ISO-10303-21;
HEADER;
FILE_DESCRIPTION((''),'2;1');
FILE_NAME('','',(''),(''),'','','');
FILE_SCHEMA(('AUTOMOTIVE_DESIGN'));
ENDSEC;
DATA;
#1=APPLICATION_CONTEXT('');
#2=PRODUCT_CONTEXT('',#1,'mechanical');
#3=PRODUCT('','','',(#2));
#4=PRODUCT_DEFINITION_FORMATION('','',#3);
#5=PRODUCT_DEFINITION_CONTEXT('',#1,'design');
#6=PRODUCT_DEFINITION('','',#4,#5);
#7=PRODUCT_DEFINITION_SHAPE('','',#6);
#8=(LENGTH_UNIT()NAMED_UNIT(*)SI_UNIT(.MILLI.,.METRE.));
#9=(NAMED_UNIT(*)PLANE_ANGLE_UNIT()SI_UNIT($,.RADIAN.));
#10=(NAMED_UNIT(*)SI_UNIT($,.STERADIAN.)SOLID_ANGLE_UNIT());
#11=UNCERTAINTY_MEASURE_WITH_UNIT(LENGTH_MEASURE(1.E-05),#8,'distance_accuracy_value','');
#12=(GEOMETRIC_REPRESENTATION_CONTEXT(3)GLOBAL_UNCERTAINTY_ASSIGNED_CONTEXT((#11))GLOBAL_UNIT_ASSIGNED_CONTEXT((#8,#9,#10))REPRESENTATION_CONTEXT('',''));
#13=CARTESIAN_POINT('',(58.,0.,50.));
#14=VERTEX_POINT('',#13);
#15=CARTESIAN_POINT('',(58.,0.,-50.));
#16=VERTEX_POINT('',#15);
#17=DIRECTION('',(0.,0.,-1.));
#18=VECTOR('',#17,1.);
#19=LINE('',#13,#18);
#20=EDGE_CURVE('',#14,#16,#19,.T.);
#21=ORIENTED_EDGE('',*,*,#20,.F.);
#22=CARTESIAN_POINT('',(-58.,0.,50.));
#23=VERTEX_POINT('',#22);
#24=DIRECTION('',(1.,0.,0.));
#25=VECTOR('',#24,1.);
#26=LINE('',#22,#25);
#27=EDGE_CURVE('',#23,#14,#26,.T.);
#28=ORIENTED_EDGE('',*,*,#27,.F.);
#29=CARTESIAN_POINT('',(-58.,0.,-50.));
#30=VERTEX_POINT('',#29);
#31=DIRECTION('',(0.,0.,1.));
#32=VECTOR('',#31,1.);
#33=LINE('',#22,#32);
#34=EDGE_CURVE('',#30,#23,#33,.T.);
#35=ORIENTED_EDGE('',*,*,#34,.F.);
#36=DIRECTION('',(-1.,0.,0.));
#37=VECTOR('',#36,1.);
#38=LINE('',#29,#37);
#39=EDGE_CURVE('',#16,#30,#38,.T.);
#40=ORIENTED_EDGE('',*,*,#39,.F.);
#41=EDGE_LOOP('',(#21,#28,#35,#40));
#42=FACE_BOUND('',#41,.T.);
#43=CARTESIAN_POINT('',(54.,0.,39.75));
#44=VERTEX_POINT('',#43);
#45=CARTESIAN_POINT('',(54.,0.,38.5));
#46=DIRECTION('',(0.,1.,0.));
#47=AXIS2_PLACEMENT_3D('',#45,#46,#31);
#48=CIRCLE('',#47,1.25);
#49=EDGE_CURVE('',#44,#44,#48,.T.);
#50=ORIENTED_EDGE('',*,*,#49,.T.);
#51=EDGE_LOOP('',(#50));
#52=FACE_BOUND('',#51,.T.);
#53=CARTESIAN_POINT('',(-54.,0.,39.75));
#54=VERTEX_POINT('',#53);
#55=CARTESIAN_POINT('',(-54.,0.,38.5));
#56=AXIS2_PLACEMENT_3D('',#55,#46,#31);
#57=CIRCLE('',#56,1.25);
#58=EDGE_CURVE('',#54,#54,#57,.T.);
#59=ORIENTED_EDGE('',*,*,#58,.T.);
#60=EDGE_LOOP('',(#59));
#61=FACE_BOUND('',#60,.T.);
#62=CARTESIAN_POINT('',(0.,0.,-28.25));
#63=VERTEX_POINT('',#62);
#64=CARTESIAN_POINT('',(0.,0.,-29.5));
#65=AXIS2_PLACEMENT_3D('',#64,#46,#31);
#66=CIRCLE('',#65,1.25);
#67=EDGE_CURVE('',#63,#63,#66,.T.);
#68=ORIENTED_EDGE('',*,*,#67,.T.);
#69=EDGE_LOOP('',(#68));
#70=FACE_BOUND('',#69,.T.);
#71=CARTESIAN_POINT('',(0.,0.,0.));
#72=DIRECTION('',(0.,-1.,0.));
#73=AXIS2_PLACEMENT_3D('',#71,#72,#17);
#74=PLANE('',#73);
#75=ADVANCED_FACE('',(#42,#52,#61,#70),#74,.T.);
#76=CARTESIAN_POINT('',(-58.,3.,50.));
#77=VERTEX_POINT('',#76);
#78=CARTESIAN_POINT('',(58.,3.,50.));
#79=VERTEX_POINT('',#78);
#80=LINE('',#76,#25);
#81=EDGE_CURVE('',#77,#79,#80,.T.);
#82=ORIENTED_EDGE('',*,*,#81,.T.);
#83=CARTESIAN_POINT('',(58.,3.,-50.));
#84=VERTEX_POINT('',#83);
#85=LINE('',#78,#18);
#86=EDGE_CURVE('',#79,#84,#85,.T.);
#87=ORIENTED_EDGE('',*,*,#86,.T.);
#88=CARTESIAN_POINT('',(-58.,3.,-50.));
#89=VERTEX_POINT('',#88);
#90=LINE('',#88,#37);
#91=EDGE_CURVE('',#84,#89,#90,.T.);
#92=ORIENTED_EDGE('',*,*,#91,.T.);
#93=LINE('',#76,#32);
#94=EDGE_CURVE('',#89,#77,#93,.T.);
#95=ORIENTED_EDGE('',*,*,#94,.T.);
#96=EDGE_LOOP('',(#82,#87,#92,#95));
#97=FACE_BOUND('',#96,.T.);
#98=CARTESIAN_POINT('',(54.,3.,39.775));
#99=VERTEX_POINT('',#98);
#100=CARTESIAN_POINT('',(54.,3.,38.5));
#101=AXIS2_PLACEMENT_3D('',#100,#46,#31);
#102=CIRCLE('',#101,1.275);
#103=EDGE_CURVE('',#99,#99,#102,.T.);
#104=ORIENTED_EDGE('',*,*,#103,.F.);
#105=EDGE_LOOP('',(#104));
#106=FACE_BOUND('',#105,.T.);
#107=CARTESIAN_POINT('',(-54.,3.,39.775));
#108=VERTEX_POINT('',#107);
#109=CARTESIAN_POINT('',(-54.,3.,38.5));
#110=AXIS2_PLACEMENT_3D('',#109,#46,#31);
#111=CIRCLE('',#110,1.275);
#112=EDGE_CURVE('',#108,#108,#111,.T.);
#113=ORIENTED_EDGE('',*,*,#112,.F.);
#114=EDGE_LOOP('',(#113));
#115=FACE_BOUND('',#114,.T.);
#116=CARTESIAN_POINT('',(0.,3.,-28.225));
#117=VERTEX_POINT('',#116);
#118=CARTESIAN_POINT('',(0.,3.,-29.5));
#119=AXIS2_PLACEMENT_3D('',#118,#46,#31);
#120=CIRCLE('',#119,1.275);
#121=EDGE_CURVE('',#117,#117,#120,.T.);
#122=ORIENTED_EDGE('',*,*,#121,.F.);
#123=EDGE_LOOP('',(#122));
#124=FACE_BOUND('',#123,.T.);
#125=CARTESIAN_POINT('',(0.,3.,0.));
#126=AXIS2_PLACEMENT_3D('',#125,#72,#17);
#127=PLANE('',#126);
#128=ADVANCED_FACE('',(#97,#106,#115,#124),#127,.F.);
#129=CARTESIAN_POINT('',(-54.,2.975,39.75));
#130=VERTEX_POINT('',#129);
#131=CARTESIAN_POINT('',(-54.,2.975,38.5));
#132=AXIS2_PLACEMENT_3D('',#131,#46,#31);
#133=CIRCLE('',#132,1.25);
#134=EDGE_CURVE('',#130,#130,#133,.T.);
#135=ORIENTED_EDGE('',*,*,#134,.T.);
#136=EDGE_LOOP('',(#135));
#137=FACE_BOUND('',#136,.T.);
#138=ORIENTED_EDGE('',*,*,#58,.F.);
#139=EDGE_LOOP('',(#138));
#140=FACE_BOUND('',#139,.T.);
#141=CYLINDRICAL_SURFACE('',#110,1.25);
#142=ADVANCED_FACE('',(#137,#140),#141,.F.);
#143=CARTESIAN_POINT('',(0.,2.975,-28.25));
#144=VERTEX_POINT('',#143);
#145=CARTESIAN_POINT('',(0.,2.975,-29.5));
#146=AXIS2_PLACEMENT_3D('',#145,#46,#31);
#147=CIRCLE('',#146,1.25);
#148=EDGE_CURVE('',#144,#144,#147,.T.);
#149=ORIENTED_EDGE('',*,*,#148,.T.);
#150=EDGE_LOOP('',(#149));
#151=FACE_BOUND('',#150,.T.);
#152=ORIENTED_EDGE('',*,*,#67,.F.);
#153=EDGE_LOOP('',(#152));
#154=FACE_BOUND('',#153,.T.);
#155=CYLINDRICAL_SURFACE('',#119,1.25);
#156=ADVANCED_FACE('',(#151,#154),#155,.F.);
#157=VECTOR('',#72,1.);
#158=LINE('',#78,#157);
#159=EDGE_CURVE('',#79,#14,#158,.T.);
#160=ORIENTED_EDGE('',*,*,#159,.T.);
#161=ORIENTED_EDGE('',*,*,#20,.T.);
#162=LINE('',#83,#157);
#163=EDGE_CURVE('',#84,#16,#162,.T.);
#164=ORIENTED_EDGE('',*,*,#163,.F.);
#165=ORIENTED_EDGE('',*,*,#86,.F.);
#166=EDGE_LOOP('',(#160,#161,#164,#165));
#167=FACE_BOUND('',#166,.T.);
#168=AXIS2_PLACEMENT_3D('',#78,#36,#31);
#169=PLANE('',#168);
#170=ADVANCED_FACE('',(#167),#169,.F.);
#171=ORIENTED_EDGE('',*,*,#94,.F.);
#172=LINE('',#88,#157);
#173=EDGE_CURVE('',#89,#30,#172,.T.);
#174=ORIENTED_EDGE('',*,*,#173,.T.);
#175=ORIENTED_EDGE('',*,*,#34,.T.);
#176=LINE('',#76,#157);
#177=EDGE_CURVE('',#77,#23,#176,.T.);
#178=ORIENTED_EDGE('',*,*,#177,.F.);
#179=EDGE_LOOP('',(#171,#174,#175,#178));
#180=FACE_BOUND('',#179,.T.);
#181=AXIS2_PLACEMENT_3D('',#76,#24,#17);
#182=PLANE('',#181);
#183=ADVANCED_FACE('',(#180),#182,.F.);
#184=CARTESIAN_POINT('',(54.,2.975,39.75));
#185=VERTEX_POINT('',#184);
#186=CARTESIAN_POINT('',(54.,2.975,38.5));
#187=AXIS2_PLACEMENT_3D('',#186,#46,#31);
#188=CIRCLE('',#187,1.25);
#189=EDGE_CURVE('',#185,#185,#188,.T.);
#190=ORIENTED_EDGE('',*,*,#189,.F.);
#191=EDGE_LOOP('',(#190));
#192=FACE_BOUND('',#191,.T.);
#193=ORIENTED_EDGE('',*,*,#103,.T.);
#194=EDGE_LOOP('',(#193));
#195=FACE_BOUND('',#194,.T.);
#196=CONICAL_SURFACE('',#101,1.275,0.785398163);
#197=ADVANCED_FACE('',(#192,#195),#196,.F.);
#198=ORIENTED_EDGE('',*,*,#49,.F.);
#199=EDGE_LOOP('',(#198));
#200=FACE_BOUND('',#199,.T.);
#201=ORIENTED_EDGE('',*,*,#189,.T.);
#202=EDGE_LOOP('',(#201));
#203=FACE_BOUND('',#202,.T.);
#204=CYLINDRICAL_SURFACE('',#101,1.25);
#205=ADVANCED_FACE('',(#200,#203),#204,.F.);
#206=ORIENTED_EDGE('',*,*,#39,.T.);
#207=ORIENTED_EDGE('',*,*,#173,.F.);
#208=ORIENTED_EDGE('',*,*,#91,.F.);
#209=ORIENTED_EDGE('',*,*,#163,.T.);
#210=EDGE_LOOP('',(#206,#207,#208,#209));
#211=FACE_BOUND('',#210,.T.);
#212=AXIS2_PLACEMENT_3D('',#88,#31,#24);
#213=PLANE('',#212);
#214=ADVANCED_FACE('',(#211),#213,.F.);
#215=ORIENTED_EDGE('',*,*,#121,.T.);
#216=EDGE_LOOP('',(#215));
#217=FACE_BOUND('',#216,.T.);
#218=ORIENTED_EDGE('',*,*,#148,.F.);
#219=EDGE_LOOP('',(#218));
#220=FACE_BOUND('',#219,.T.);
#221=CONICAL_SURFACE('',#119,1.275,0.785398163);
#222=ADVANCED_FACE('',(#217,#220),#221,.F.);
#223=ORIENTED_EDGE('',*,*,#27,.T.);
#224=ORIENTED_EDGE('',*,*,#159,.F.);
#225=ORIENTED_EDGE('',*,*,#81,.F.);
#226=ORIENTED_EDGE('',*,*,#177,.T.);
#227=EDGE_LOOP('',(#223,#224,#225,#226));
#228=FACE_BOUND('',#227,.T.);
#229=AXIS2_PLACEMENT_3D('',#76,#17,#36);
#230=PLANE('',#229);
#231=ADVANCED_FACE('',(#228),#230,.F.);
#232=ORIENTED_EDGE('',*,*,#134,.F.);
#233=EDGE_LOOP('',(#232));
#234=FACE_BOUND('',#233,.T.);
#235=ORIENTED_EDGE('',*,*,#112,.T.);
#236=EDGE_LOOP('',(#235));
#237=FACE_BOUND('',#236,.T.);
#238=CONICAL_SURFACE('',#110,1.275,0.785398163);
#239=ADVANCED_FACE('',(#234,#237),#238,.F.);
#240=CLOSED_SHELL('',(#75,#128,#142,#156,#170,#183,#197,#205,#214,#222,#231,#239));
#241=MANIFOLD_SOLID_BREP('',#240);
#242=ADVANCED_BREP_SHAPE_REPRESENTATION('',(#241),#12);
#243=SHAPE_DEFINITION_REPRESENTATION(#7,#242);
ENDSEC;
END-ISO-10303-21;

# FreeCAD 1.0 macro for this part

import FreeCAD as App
import Part
import Sketcher

V = App.Vector


def add_polygon(sketch, points):
    """Adds a closed chain of lines whose ends are joined by coincident constraints."""
    first, n = sketch.GeometryCount, len(points)
    for a, b in zip(points, points[1:] + points[:1]):
        sketch.addGeometry(Part.LineSegment(App.Vector(*a, 0), App.Vector(*b, 0)), False)
    for i in range(n):
        sketch.addConstraint(Sketcher.Constraint("Coincident", first + i, 2, first + (i + 1) % n, 1))

doc = App.newDocument("Part")
body = doc.addObject("PartDesign::Body", "Body")

# Sketch on XZ plane
sketch1 = doc.addObject("Sketcher::SketchObject", "Sketch")
body.addObject(sketch1)
sketch1.AttachmentSupport = (doc.XZ_Plane, [""])
sketch1.MapMode = "FlatFace"
add_polygon(sketch1, [(-58, -50), (-58, 50), (58, 50), (58, -50)])  # lines 0-3
sketch1.addConstraint([
    Sketcher.Constraint("Vertical", 0),
    Sketcher.Constraint("Horizontal", 1),
    Sketcher.Constraint("Vertical", 2),
    Sketcher.Constraint("Horizontal", 3),
    Sketcher.Constraint("Symmetric", 0, 2, 2, 2, -1, 1),
    Sketcher.Constraint("DistanceX", 1, 1, 1, 2, 116.0),
    Sketcher.Constraint("DistanceY", 0, 1, 0, 2, 100.0),
])
pad1 = doc.addObject("PartDesign::Pad", "Pad")
body.addObject(pad1)
pad1.Profile = sketch1
pad1.Length = 3
pad1.Reversed = True

# Sketch on XZ plane
sketch2 = doc.addObject("Sketcher::SketchObject", "Sketch001")
body.addObject(sketch2)
sketch2.AttachmentSupport = (doc.XZ_Plane, [""])
sketch2.MapMode = "FlatFace"
sketch2.AttachmentOffset = App.Placement(V(0, 0, -3), App.Rotation())
sketch2.addGeometry([
    Part.Circle(V(0, -29.5, 0), V(0, 0, 1), 1.2),
    Part.Circle(V(-54, 38.5, 0), V(0, 0, 1), 1.2),
    Part.Circle(V(54, 38.5, 0), V(0, 0, 1), 1.2),
], False)
sketch2.addConstraint([
    Sketcher.Constraint("Equal", 0, 1),
    Sketcher.Constraint("Equal", 1, 2),
    Sketcher.Constraint("Symmetric", 1, 3, 2, 3, -2),
    Sketcher.Constraint("PointOnObject", 0, 3, -2),
    Sketcher.Constraint("Diameter", 0, 2.5),
    Sketcher.Constraint("DistanceX", 1, 3, -1, 1, 54.0),
    Sketcher.Constraint("DistanceY", 0, 3, 1, 3, 68.0),
    Sketcher.Constraint("DistanceY", 0, 3, -1, 1, 29.5),
])
doc.recompute()
hole = doc.addObject("PartDesign::Hole", "Hole")
body.addObject(hole)
hole.Profile = sketch2
hole.ThreadType = "None"
hole.Diameter = 2.5
hole.DepthType = "ThroughAll"
hole.HoleCutType = "Countersink"
hole.HoleCutDiameter = 2.55
hole.HoleCutCountersinkAngle = 90
hole.Reversed = True

doc.recompute()
